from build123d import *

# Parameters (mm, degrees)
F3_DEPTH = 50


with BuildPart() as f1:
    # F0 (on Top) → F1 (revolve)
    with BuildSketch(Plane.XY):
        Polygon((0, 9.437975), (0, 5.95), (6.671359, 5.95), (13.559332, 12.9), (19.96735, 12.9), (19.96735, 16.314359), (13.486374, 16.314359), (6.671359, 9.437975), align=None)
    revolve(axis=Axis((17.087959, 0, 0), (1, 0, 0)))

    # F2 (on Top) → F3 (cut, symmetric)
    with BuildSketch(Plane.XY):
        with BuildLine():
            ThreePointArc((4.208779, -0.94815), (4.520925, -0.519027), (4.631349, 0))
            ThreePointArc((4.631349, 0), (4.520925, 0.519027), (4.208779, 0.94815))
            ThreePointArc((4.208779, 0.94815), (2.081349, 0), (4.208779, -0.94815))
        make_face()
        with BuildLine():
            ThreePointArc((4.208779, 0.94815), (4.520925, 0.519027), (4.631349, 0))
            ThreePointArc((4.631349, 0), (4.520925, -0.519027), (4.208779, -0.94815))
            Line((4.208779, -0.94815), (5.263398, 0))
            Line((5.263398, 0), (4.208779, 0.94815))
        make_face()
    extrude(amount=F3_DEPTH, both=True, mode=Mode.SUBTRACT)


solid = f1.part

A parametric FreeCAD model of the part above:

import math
import FreeCAD as App
import Part
import Sketcher

V = App.Vector


def add_polygon(sketch, points):
    """Adds a closed chain of lines whose ends are joined by coincident constraints."""
    first, n = sketch.GeometryCount, len(points)
    for a, b in zip(points, points[1:] + points[:1]):
        sketch.addGeometry(Part.LineSegment(App.Vector(*a, 0), App.Vector(*b, 0)), False)
    for i in range(n):
        sketch.addConstraint(Sketcher.Constraint("Coincident", first + i, 2, first + (i + 1) % n, 1))

doc = App.newDocument("Part")
body = doc.addObject("PartDesign::Body", "Body")

sketch1 = body.newObject("Sketcher::SketchObject", "Sketch")
sketch1.AttachmentSupport = (doc.getObject("XY_Plane"), [""])
sketch1.MapMode = "FlatFace"
add_polygon(sketch1, [(0, 9.4), (0, 6), (6.7, 6), (13.6, 12.9), (20, 12.9), (20, 16.3), (13.5, 16.3), (6.7, 9.4)])
sketch1.addConstraint(Sketcher.Constraint("Vertical", 0))
sketch1.addConstraint(Sketcher.Constraint("Horizontal", 1))
sketch1.addConstraint(Sketcher.Constraint("Horizontal", 3))
sketch1.addConstraint(Sketcher.Constraint("Vertical", 4))
sketch1.addConstraint(Sketcher.Constraint("Horizontal", 5))
sketch1.addConstraint(Sketcher.Constraint("Horizontal", 7))
sketch1.addConstraint(Sketcher.Constraint("PointOnObject", 0, 2, -2))
sketch1.addConstraint(Sketcher.Constraint("Parallel", 2, 6))
sketch1.addConstraint(Sketcher.Constraint("Vertical", 1, 2, 6, 2))
sketch1.addConstraint(Sketcher.Constraint("DistanceY", -1, 1, 2, 2, 12.9))
sketch1.addConstraint(Sketcher.Constraint("DistanceY", -1, 1, 0, 2, 5.95))
sketch1.addConstraint(Sketcher.Constraint("DistanceX", 1, 1, 1, 2, 6.671359))
sketch1.addConstraint(Sketcher.Constraint("DistanceX", 3, 1, 3, 2, 6.408018))
sketch1.addConstraint(Sketcher.Constraint("DistanceY", 4, 1, 4, 2, 3.414359))
sketch1.addConstraint(Sketcher.Constraint("Distance", 6, 9.681378))
sketch1.addConstraint(Sketcher.Constraint("DistanceX", 5, 2, 5, 1, 6.480976))
revolution = body.newObject("PartDesign::Revolution", "Revolution")
revolution.Profile = sketch1
revolution.ReferenceAxis = (sketch1, ["H_Axis"])
revolution.Angle = 360

sketch2 = body.newObject("Sketcher::SketchObject", "Sketch001")
sketch2.AttachmentSupport = (doc.getObject("XY_Plane"), [""])
sketch2.MapMode = "FlatFace"
sketch2.addGeometry(Part.ArcOfCircle(Part.Circle(V(3.4, 0, 0), V(0, 0, 1), 1.3), math.radians(48), math.radians(312)), False)
sketch2.addGeometry(Part.LineSegment(V(4.2, -0.9, 0), V(5.3, 0, 0)), False)
sketch2.addGeometry(Part.LineSegment(V(5.3, 0, 0), V(4.2, 0.9, 0)), False)
sketch2.addConstraint(Sketcher.Constraint("Tangent", 0, 2, 1, 1))
sketch2.addConstraint(Sketcher.Constraint("Coincident", 1, 2, 2, 1))
sketch2.addConstraint(Sketcher.Constraint("Tangent", 2, 2, 0, 1))
sketch2.addConstraint(Sketcher.Constraint("Symmetric", 0, 2, 2, 2, -1))
sketch2.addConstraint(Sketcher.Constraint("Radius", 0, 1.275))
sketch2.addConstraint(Sketcher.Constraint("DistanceY", 0, 2, 2, 2, 1.8963))
sketch2.addConstraint(Sketcher.Constraint("DistanceX", -1, 1, 0, 3, 3.356349))
pocket1 = body.newObject("PartDesign::Pocket", "Pocket")
pocket1.Profile = sketch2
pocket1.Length = 100
pocket1.Midplane = True

doc.recompute()
